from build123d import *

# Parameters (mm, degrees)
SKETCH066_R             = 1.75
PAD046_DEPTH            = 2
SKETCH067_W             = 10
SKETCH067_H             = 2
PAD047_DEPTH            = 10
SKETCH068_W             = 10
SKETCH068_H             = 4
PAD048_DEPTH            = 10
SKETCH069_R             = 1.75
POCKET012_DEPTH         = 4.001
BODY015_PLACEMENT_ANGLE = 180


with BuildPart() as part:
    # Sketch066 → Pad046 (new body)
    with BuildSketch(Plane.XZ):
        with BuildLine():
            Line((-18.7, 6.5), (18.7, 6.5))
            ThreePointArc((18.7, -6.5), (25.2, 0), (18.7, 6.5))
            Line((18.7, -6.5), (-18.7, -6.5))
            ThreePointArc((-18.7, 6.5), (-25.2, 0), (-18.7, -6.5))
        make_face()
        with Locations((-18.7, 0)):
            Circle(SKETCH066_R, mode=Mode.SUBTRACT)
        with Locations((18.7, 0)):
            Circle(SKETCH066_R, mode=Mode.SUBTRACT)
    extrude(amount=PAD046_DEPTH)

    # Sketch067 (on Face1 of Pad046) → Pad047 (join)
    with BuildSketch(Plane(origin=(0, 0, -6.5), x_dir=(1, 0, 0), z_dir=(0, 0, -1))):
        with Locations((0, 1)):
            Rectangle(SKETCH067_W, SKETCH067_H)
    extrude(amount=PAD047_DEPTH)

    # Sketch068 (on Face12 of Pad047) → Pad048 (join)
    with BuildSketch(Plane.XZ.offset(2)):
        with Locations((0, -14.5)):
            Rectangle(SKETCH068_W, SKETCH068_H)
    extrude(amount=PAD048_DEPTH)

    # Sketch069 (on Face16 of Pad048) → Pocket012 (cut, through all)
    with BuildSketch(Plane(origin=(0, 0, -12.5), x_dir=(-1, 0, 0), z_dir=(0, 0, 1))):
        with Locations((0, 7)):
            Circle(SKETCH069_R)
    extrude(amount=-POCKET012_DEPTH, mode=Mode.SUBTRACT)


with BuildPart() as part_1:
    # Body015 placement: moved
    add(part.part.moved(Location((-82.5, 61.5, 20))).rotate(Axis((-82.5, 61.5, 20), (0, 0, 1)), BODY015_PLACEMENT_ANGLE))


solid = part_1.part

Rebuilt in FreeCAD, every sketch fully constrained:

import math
import FreeCAD as App
import Part
import Sketcher

doc = App.newDocument("Part")
body = doc.addObject("PartDesign::Body", "Body")

sketch1 = body.newObject("Sketcher::SketchObject", "Sketch")
sketch1.AttachmentSupport = (doc.getObject("XZ_Plane"), [""])
sketch1.MapMode = "FlatFace"
sketch1.addGeometry([
    Part.LineSegment(App.Vector(18.7, 6.5, 0), App.Vector(-18.7, 6.5, 0)),
    Part.ArcOfCircle(Part.Circle(App.Vector(-18.7, 0, 0), App.Vector(0, 0, 1), 6.5), math.radians(90), math.radians(270)),
    Part.LineSegment(App.Vector(-18.7, -6.5, 0), App.Vector(18.7, -6.5, 0)),
    Part.ArcOfCircle(Part.Circle(App.Vector(18.7, 0, 0), App.Vector(0, 0, 1), 6.5), math.radians(-90), math.radians(90)),
    Part.Circle(App.Vector(18.7, 0, 0), App.Vector(0, 0, 1), 1.8),
    Part.Circle(App.Vector(-18.7, 0, 0), App.Vector(0, 0, 1), 1.8),
], False)
sketch1.addConstraint([
    Sketcher.Constraint("Tangent", 0, 2, 1, 1),
    Sketcher.Constraint("Tangent", 1, 2, 2, 1),
    Sketcher.Constraint("Tangent", 2, 2, 3, 1),
    Sketcher.Constraint("Tangent", 3, 2, 0, 1),
    Sketcher.Constraint("Horizontal", 0),
    Sketcher.Constraint("Horizontal", 2),
    Sketcher.Constraint("Coincident", 4, 3, 3, 3),
    Sketcher.Constraint("Coincident", 5, 3, 1, 3),
    Sketcher.Constraint("Equal", 4, 5),
    Sketcher.Constraint("Symmetric", 1, 3, 3, 3, -1, 1),
    Sketcher.Constraint("Diameter", 4, 3.5),
    Sketcher.Constraint("Radius", 1, 6.5),
    Sketcher.Constraint("DistanceX", 0, 2, 0, 1, 37.4),
])
pad1 = body.newObject("PartDesign::Pad", "Pad")
pad1.Profile = sketch1
pad1.Length = 2

sketch2 = body.newObject("Sketcher::SketchObject", "Sketch001")
sketch2.AttachmentSupport = (doc.getObject("XY_Plane"), [""])
sketch2.MapMode = "FlatFace"
sketch2.AttachmentOffset = App.Placement(App.Vector(0, 0, -6.5), App.Rotation())
sketch2.addGeometry([
    Part.LineSegment(App.Vector(-5, -2, 0), App.Vector(-5, 0, 0)),
    Part.LineSegment(App.Vector(-5, 0, 0), App.Vector(5, 0, 0)),
    Part.LineSegment(App.Vector(5, 0, 0), App.Vector(5, -2, 0)),
    Part.LineSegment(App.Vector(5, -2, 0), App.Vector(-5, -2, 0)),
], False)
sketch2.addConstraint([
    Sketcher.Constraint("Coincident", 0, 2, 1, 1),
    Sketcher.Constraint("Coincident", 1, 2, 2, 1),
    Sketcher.Constraint("Coincident", 2, 2, 3, 1),
    Sketcher.Constraint("Coincident", 3, 2, 0, 1),
    Sketcher.Constraint("Vertical", 0),
    Sketcher.Constraint("Horizontal", 1),
    Sketcher.Constraint("Vertical", 2),
    Sketcher.Constraint("Horizontal", 3),
    Sketcher.Constraint("Symmetric", 0, 2, 1, 2, -1, 1),
    Sketcher.Constraint("DistanceX", 1, 1, 1, 2, 10.0),
    Sketcher.Constraint("DistanceY", 0, 1, 0, 2, 2.0),
])
pad2 = body.newObject("PartDesign::Pad", "Pad001")
pad2.Profile = sketch2
pad2.Length = 10
pad2.Reversed = True

sketch3 = body.newObject("Sketcher::SketchObject", "Sketch002")
sketch3.AttachmentSupport = (doc.getObject("XZ_Plane"), [""])
sketch3.MapMode = "FlatFace"
sketch3.AttachmentOffset = App.Placement(App.Vector(0, 0, 2), App.Rotation())
sketch3.addGeometry([
    Part.LineSegment(App.Vector(-5, -12.5, 0), App.Vector(-5, -16.5, 0)),
    Part.LineSegment(App.Vector(-5, -16.5, 0), App.Vector(5, -16.5, 0)),
    Part.LineSegment(App.Vector(5, -16.5, 0), App.Vector(5, -12.5, 0)),
    Part.LineSegment(App.Vector(5, -12.5, 0), App.Vector(-5, -12.5, 0)),
], False)
sketch3.addConstraint([
    Sketcher.Constraint("Coincident", 0, 2, 1, 1),
    Sketcher.Constraint("Coincident", 1, 2, 2, 1),
    Sketcher.Constraint("Coincident", 2, 2, 3, 1),
    Sketcher.Constraint("Coincident", 3, 2, 0, 1),
    Sketcher.Constraint("Vertical", 0),
    Sketcher.Constraint("Horizontal", 1),
    Sketcher.Constraint("Vertical", 2),
    Sketcher.Constraint("Horizontal", 3),
    Sketcher.Constraint("DistanceX", 1, 1, 1, 2, 10.0),
    Sketcher.Constraint("DistanceY", 0, 2, 0, 1, 4.0),
    Sketcher.Constraint("DistanceX", 0, 2, -1, 1, 5.0),
    Sketcher.Constraint("DistanceY", 0, 2, -1, 1, 16.5),
])
pad3 = body.newObject("PartDesign::Pad", "Pad002")
pad3.Profile = sketch3
pad3.Length = 10

sketch4 = body.newObject("Sketcher::SketchObject", "Sketch003")
sketch4.AttachmentSupport = (doc.getObject("XY_Plane"), [""])
sketch4.MapMode = "FlatFace"
sketch4.AttachmentOffset = App.Placement(App.Vector(0, 0, -12.5), App.Rotation())
sketch4.addGeometry(Part.Circle(App.Vector(0, -7, 0), App.Vector(0, 0, 1), 1.8), False)
sketch4.addConstraint([
    Sketcher.Constraint("PointOnObject", 0, 3, -2),
    Sketcher.Constraint("Diameter", 0, 3.5),
    Sketcher.Constraint("DistanceY", 0, 3, -1, 1, 7.0),
])
pocket1 = body.newObject("PartDesign::Pocket", "Pocket")
pocket1.Profile = sketch4
pocket1.Type = "ThroughAll"
body2 = doc.addObject("PartDesign::Body", "Body001")
doc.recompute()

body.Placement = App.Placement(App.Vector(-82.5, 61.5, 20), App.Rotation(App.Vector(0, 0, 1), 180))
boolean = body2.newObject("PartDesign::Boolean", "Boolean")
boolean.Type = "Fuse"
boolean.addObjects([body])

doc.recompute()
